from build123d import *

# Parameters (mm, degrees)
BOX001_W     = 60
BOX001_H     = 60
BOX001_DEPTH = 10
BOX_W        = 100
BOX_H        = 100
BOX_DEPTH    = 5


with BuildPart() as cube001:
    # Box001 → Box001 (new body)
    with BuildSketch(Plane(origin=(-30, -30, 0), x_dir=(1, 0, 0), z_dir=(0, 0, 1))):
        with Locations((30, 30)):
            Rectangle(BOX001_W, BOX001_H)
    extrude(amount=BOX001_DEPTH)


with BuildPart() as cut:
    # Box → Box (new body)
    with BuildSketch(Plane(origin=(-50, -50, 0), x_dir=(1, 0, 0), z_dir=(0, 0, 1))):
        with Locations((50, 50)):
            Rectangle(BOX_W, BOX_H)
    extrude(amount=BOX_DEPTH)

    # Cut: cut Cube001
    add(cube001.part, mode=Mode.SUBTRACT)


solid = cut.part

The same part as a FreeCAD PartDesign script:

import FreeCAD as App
import Part
import Sketcher

V = App.Vector
Q = App.Units.Quantity

doc = App.newDocument("Part")
body = doc.addObject("PartDesign::Body", "Body")

sketch1 = body.newObject("Sketcher::SketchObject", "Sketch")
sketch1.AttachmentSupport = (doc.getObject("XY_Plane"), [""])
sketch1.MapMode = "FlatFace"
sketch1.addGeometry(Part.LineSegment(V(-30, 30, 0), V(-30, -30, 0)), False)
sketch1.addGeometry(Part.LineSegment(V(-30, -30, 0), V(30, -30, 0)), False)
sketch1.addGeometry(Part.LineSegment(V(30, -30, 0), V(30, 30, 0)), False)
sketch1.addGeometry(Part.LineSegment(V(30, 30, 0), V(-30, 30, 0)), False)
sketch1.addConstraint(Sketcher.Constraint("Coincident", 0, 2, 1, 1))
sketch1.addConstraint(Sketcher.Constraint("Coincident", 1, 2, 2, 1))
sketch1.addConstraint(Sketcher.Constraint("Coincident", 2, 2, 3, 1))
sketch1.addConstraint(Sketcher.Constraint("Coincident", 3, 2, 0, 1))
sketch1.addConstraint(Sketcher.Constraint("Vertical", 0))
sketch1.addConstraint(Sketcher.Constraint("Horizontal", 1))
sketch1.addConstraint(Sketcher.Constraint("Vertical", 2))
sketch1.addConstraint(Sketcher.Constraint("Horizontal", 3))
sketch1.addConstraint(Sketcher.Constraint("Symmetric", 0, 2, 2, 2, -1, 1))
sketch1.addConstraint(Sketcher.Constraint("Equal", 3, 0))
sketch1.addConstraint(Sketcher.Constraint("DistanceX", 1, 1, 1, 2, Q("60 mm")))
pad1 = body.newObject("PartDesign::Pad", "Pad")
pad1.Profile = sketch1
pad1.Length = 10
body2 = doc.addObject("PartDesign::Body", "Body001")

sketch2 = body2.newObject("Sketcher::SketchObject", "Sketch001")
sketch2.AttachmentSupport = (doc.getObject("XY_Plane001"), [""])
sketch2.MapMode = "FlatFace"
sketch2.addGeometry(Part.LineSegment(V(-50, 50, 0), V(-50, -50, 0)), False)
sketch2.addGeometry(Part.LineSegment(V(-50, -50, 0), V(50, -50, 0)), False)
sketch2.addGeometry(Part.LineSegment(V(50, -50, 0), V(50, 50, 0)), False)
sketch2.addGeometry(Part.LineSegment(V(50, 50, 0), V(-50, 50, 0)), False)
sketch2.addConstraint(Sketcher.Constraint("Coincident", 0, 2, 1, 1))
sketch2.addConstraint(Sketcher.Constraint("Coincident", 1, 2, 2, 1))
sketch2.addConstraint(Sketcher.Constraint("Coincident", 2, 2, 3, 1))
sketch2.addConstraint(Sketcher.Constraint("Coincident", 3, 2, 0, 1))
sketch2.addConstraint(Sketcher.Constraint("Vertical", 0))
sketch2.addConstraint(Sketcher.Constraint("Horizontal", 1))
sketch2.addConstraint(Sketcher.Constraint("Vertical", 2))
sketch2.addConstraint(Sketcher.Constraint("Horizontal", 3))
sketch2.addConstraint(Sketcher.Constraint("Symmetric", 0, 2, 2, 2, -1, 1))
sketch2.addConstraint(Sketcher.Constraint("Equal", 3, 0))
sketch2.addConstraint(Sketcher.Constraint("DistanceX", 1, 1, 1, 2, Q("100 mm")))
pad2 = body2.newObject("PartDesign::Pad", "Pad001")
pad2.Profile = sketch2
pad2.Length = 5
doc.recompute()

boolean = body2.newObject("PartDesign::Boolean", "Boolean")
boolean.Type = "Cut"
boolean.addObjects([body])

doc.recompute()
